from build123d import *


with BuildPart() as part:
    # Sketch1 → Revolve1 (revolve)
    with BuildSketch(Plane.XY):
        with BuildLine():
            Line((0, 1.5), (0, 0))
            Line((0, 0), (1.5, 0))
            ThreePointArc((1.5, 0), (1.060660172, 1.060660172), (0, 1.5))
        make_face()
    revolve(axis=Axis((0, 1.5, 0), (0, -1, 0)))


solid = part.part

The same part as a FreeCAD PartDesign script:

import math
import FreeCAD as App
import Part
import Sketcher
Q = App.Units.Quantity

doc = App.newDocument("Part")
params = doc.addObject("Spreadsheet::Sheet", "Params")
for row, (alias, value) in enumerate([
    ("sketch1_radius", "1.5 mm"),
    ("revolution_angle", "360 deg"),
], start=1):
    params.set(f"A{row}", alias)
    params.set(f"B{row}", "=" + value)
    params.setAlias(f"B{row}", alias)

body = doc.addObject("PartDesign::Body", "Body")

# Sketch on XY plane
sketch1 = body.newObject("Sketcher::SketchObject", "Sketch")
sketch1.AttachmentSupport = (doc.getObject("XY_Plane"), [""])
sketch1.MapMode = "FlatFace"
sketch1.addGeometry([
    Part.LineSegment(App.Vector(0, 1.5, 0), App.Vector(0, 0, 0)),
    Part.LineSegment(App.Vector(0, 0, 0), App.Vector(1.5, 0, 0)),
    Part.ArcOfCircle(Part.Circle(App.Vector(0, 0, 0), App.Vector(0, 0, 1), 1.5), math.radians(0), math.radians(90)),
], False)
sketch1.addConstraint([
    Sketcher.Constraint("Coincident", 0, 2, 1, 1),
    Sketcher.Constraint("Coincident", 1, 2, 2, 1),
    Sketcher.Constraint("Coincident", 2, 2, 0, 1),
    Sketcher.Constraint("Vertical", 0),
    Sketcher.Constraint("Horizontal", 1),
    Sketcher.Constraint("Coincident", 2, 3, -1, 1),
    Sketcher.Constraint("Coincident", 0, 2, -1, 1),
    Sketcher.Constraint("Radius", 2, Q("1.5 mm")),
])
sketch1.setExpression("Constraints[7]", "Params.sketch1_radius")
revolution = body.newObject("PartDesign::Revolution", "Revolution")
revolution.Profile = sketch1
revolution.ReferenceAxis = (sketch1, ["V_Axis"])
revolution.setExpression("Angle", "Params.revolution_angle")

doc.recompute()
